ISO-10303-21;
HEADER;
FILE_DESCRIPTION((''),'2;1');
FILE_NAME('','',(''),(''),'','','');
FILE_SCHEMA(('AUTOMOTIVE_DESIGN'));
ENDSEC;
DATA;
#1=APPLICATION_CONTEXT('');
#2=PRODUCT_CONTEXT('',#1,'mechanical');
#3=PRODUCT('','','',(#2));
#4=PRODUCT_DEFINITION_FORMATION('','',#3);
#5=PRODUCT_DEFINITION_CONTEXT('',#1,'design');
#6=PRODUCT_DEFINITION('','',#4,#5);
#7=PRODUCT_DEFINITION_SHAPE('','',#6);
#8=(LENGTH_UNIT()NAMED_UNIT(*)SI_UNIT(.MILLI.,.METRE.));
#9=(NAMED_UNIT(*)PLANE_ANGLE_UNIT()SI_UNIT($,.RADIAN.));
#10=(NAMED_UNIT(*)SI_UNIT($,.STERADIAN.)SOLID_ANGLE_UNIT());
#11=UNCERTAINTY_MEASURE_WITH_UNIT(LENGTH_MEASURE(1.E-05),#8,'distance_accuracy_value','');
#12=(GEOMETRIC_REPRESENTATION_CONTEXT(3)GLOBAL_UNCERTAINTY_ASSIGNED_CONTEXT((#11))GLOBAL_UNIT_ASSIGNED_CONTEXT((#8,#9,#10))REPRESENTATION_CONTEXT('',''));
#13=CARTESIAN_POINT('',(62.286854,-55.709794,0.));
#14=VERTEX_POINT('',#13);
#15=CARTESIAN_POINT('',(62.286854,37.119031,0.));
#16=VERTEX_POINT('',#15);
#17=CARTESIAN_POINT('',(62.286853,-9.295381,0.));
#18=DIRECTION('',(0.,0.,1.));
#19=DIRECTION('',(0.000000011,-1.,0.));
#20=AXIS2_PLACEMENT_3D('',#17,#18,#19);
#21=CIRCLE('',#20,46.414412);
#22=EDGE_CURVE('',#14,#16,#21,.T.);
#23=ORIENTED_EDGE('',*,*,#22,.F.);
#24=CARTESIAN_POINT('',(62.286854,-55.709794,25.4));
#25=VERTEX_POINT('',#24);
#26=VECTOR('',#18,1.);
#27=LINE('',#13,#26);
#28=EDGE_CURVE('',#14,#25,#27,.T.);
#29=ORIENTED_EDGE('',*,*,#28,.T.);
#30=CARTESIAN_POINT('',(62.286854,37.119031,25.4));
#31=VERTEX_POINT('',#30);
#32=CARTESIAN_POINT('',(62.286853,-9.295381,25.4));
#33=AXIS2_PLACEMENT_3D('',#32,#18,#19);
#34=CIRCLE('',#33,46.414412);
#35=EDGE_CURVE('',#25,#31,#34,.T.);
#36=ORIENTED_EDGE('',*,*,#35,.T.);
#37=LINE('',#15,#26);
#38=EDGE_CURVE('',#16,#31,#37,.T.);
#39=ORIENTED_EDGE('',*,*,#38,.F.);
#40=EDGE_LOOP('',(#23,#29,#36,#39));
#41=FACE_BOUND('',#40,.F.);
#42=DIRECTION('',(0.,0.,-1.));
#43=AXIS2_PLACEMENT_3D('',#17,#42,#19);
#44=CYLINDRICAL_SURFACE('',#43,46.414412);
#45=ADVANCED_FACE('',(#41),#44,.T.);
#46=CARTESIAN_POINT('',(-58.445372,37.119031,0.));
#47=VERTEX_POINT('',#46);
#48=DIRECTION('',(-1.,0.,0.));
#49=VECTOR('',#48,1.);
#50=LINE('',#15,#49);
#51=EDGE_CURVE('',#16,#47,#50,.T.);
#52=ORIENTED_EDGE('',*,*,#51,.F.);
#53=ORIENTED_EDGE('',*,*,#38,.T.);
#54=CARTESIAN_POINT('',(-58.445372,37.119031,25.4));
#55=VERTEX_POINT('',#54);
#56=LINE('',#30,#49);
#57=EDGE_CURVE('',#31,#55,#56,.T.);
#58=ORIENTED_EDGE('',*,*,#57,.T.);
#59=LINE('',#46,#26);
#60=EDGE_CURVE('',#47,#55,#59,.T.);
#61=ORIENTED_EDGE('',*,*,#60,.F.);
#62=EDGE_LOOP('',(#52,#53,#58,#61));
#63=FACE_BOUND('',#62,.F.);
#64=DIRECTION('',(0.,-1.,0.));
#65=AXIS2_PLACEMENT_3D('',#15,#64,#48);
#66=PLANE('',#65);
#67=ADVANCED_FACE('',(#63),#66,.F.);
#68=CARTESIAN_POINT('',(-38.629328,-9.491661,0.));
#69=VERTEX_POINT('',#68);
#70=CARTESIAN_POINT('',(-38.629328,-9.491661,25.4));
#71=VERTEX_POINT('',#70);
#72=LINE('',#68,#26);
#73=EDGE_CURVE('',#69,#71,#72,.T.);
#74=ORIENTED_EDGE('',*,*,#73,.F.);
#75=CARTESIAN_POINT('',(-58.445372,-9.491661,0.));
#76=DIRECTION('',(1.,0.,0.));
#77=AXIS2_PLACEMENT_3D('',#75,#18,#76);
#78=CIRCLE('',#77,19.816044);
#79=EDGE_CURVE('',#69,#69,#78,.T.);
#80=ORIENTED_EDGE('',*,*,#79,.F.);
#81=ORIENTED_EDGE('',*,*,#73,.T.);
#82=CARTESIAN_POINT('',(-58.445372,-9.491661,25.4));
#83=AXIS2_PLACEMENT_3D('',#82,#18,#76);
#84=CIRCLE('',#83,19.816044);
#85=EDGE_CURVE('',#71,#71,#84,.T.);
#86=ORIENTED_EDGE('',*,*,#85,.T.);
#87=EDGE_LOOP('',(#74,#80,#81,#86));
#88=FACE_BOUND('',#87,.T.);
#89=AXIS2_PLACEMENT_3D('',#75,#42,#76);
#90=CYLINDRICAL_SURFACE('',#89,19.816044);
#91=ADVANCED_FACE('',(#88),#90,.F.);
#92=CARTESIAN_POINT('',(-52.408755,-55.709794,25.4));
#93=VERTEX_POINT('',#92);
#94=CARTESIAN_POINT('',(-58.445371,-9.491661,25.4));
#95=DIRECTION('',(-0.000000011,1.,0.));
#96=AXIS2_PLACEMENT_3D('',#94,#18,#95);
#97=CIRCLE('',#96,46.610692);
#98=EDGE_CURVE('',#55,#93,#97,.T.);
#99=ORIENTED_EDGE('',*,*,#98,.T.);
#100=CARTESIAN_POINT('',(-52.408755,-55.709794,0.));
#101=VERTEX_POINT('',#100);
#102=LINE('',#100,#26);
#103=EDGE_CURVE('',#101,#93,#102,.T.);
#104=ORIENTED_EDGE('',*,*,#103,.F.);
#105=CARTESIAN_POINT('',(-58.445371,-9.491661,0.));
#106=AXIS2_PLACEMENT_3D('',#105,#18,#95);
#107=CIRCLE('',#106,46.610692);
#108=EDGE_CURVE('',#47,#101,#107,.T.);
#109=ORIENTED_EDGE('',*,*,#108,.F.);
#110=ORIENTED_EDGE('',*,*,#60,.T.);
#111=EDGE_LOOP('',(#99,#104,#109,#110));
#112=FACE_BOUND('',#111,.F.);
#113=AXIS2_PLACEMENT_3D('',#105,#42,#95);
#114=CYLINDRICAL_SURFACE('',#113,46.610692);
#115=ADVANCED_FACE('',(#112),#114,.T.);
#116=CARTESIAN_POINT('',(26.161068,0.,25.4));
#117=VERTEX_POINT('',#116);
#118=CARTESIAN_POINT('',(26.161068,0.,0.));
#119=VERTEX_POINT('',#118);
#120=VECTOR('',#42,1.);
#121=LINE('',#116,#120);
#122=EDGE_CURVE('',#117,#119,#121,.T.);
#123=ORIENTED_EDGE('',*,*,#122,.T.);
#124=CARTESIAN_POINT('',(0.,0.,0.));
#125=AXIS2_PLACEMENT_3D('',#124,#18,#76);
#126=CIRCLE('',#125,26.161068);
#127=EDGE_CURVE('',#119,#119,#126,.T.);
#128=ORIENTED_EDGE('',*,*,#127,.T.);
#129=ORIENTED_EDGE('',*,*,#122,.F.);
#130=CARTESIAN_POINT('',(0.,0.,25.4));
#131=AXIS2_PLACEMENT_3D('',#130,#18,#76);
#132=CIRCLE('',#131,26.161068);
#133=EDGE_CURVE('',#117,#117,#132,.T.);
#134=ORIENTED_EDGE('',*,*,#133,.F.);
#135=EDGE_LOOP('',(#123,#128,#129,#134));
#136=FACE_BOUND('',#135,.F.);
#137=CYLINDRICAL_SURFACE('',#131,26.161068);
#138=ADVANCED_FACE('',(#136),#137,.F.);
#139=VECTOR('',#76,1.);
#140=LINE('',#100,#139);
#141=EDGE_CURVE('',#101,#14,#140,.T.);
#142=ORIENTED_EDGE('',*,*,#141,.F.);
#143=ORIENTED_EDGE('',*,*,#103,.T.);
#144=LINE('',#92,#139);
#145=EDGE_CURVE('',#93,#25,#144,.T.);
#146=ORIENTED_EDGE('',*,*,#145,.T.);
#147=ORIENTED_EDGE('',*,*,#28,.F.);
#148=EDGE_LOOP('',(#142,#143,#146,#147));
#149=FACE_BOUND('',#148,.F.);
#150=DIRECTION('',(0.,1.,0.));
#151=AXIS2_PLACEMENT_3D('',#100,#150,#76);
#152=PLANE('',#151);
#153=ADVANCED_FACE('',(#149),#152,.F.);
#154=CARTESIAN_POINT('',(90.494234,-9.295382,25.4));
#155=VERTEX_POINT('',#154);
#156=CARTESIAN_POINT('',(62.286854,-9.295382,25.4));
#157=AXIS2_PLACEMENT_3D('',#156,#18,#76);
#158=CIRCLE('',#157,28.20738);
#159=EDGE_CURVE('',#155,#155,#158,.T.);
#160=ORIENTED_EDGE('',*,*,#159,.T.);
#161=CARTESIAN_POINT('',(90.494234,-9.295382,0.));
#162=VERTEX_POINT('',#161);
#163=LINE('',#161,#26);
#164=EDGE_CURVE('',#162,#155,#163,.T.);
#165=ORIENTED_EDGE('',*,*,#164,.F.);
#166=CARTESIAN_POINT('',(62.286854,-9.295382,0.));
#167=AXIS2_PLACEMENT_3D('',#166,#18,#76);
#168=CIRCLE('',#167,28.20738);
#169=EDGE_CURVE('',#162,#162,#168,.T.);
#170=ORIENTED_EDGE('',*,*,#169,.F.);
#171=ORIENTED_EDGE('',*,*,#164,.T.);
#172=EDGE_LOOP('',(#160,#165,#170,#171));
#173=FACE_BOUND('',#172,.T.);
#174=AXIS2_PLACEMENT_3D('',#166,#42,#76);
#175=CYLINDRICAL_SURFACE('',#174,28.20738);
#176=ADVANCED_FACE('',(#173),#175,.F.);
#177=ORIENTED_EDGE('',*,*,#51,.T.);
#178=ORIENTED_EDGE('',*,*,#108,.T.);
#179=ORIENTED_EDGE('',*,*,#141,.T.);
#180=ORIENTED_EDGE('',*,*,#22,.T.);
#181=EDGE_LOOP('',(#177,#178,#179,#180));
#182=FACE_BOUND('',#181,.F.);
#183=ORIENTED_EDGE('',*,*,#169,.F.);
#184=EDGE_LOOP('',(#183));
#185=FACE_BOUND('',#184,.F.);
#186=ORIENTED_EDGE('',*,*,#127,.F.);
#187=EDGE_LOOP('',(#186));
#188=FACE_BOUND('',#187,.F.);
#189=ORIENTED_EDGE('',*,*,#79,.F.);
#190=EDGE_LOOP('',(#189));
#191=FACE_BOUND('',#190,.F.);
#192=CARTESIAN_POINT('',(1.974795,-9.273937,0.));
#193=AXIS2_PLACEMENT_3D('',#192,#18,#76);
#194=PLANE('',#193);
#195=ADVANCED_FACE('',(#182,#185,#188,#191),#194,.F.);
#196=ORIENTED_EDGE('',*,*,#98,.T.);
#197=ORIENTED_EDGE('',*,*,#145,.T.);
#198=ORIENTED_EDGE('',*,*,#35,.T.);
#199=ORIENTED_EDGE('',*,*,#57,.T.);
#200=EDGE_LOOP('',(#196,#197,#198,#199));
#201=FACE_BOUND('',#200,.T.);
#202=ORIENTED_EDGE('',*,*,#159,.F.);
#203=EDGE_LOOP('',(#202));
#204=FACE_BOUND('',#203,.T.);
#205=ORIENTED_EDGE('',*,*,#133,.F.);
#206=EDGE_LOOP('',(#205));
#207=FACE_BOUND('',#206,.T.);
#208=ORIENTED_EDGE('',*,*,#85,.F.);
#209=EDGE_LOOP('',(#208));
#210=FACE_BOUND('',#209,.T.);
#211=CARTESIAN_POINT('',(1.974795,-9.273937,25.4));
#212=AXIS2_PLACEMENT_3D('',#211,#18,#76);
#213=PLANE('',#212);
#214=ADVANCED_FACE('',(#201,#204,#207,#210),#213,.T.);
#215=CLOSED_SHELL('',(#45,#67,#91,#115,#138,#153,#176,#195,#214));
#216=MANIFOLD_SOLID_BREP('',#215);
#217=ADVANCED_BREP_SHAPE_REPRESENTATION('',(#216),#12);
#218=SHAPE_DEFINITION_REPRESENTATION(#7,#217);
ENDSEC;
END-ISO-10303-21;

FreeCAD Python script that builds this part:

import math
import FreeCAD as App
import Part
import Sketcher

V = App.Vector
Q = App.Units.Quantity

doc = App.newDocument("Part")
body = doc.addObject("PartDesign::Body", "Body")

# Sketch on XY plane
sketch1 = doc.addObject("Sketcher::SketchObject", "Sketch")
body.addObject(sketch1)
sketch1.AttachmentSupport = (doc.XY_Plane, [""])
sketch1.MapMode = "FlatFace"
sketch1.addGeometry(Part.LineSegment(V(62, 37, 0), V(-58, 37, 0)), False)
sketch1.addGeometry(Part.ArcOfCircle(Part.Circle(V(-58, -9, 0), V(0, 0, 1), 47), math.radians(90), math.radians(277)), False)
sketch1.addGeometry(Part.LineSegment(V(-52, -56, 0), V(62, -56, 0)), False)
sketch1.addGeometry(Part.ArcOfCircle(Part.Circle(V(62, -9, 0), V(0, 0, 1), 46), math.radians(-90), math.radians(90)), False)
sketch1.addGeometry(Part.Circle(V(-58, -9, 0), V(0, 0, 1), 20), False)
sketch1.addGeometry(Part.Circle(V(62, -9, 0), V(0, 0, 1), 28), False)
sketch1.addConstraint(Sketcher.Constraint("Tangent", 0, 2, 1, 1))
sketch1.addConstraint(Sketcher.Constraint("Coincident", 1, 2, 2, 1))
sketch1.addConstraint(Sketcher.Constraint("Tangent", 2, 2, 3, 1))
sketch1.addConstraint(Sketcher.Constraint("Tangent", 3, 2, 0, 1))
sketch1.addConstraint(Sketcher.Constraint("Horizontal", 0))
sketch1.addConstraint(Sketcher.Constraint("Horizontal", 2))
sketch1.addConstraint(Sketcher.Constraint("Coincident", 4, 3, 1, 3))
sketch1.addConstraint(Sketcher.Constraint("Coincident", 5, 3, 3, 3))
sketch1.addConstraint(Sketcher.Constraint("Diameter", 4, 39.632088))
sketch1.addConstraint(Sketcher.Constraint("Diameter", 5, 56.41476))
sketch1.addConstraint(Sketcher.Constraint("Radius", 1, 46.610692))
sketch1.addConstraint(Sketcher.Constraint("Radius", 3, 46.414412))
sketch1.addConstraint(Sketcher.Constraint("DistanceX", 2, 1, 2, 2, 114.695609))
sketch1.addConstraint(Sketcher.Constraint("DistanceX", 1, 3, -1, 1, 58.445371))
sketch1.addConstraint(Sketcher.Constraint("DistanceY", 1, 3, -1, 1, 9.491661))
pad1 = doc.addObject("PartDesign::Pad", "Pad")
body.addObject(pad1)
pad1.Profile = sketch1
pad1.Length = Q("1 in")

# Sketch on XY plane
sketch2 = doc.addObject("Sketcher::SketchObject", "Sketch001")
body.addObject(sketch2)
sketch2.AttachmentSupport = (doc.XY_Plane, [""])
sketch2.MapMode = "FlatFace"
sketch2.AttachmentOffset = App.Placement(V(0, 0, 1 * 25.4), App.Rotation())
sketch2.addGeometry(Part.Circle(V(0, 0, 0), V(0, 0, 1), 26), False)
sketch2.addConstraint(Sketcher.Constraint("Coincident", 0, 3, -1, 1))
sketch2.addConstraint(Sketcher.Constraint("Diameter", 0, 52.322136))
pocket1 = doc.addObject("PartDesign::Pocket", "Pocket")
body.addObject(pocket1)
pocket1.Profile = sketch2
pocket1.Length = 95.89977

doc.recompute()
